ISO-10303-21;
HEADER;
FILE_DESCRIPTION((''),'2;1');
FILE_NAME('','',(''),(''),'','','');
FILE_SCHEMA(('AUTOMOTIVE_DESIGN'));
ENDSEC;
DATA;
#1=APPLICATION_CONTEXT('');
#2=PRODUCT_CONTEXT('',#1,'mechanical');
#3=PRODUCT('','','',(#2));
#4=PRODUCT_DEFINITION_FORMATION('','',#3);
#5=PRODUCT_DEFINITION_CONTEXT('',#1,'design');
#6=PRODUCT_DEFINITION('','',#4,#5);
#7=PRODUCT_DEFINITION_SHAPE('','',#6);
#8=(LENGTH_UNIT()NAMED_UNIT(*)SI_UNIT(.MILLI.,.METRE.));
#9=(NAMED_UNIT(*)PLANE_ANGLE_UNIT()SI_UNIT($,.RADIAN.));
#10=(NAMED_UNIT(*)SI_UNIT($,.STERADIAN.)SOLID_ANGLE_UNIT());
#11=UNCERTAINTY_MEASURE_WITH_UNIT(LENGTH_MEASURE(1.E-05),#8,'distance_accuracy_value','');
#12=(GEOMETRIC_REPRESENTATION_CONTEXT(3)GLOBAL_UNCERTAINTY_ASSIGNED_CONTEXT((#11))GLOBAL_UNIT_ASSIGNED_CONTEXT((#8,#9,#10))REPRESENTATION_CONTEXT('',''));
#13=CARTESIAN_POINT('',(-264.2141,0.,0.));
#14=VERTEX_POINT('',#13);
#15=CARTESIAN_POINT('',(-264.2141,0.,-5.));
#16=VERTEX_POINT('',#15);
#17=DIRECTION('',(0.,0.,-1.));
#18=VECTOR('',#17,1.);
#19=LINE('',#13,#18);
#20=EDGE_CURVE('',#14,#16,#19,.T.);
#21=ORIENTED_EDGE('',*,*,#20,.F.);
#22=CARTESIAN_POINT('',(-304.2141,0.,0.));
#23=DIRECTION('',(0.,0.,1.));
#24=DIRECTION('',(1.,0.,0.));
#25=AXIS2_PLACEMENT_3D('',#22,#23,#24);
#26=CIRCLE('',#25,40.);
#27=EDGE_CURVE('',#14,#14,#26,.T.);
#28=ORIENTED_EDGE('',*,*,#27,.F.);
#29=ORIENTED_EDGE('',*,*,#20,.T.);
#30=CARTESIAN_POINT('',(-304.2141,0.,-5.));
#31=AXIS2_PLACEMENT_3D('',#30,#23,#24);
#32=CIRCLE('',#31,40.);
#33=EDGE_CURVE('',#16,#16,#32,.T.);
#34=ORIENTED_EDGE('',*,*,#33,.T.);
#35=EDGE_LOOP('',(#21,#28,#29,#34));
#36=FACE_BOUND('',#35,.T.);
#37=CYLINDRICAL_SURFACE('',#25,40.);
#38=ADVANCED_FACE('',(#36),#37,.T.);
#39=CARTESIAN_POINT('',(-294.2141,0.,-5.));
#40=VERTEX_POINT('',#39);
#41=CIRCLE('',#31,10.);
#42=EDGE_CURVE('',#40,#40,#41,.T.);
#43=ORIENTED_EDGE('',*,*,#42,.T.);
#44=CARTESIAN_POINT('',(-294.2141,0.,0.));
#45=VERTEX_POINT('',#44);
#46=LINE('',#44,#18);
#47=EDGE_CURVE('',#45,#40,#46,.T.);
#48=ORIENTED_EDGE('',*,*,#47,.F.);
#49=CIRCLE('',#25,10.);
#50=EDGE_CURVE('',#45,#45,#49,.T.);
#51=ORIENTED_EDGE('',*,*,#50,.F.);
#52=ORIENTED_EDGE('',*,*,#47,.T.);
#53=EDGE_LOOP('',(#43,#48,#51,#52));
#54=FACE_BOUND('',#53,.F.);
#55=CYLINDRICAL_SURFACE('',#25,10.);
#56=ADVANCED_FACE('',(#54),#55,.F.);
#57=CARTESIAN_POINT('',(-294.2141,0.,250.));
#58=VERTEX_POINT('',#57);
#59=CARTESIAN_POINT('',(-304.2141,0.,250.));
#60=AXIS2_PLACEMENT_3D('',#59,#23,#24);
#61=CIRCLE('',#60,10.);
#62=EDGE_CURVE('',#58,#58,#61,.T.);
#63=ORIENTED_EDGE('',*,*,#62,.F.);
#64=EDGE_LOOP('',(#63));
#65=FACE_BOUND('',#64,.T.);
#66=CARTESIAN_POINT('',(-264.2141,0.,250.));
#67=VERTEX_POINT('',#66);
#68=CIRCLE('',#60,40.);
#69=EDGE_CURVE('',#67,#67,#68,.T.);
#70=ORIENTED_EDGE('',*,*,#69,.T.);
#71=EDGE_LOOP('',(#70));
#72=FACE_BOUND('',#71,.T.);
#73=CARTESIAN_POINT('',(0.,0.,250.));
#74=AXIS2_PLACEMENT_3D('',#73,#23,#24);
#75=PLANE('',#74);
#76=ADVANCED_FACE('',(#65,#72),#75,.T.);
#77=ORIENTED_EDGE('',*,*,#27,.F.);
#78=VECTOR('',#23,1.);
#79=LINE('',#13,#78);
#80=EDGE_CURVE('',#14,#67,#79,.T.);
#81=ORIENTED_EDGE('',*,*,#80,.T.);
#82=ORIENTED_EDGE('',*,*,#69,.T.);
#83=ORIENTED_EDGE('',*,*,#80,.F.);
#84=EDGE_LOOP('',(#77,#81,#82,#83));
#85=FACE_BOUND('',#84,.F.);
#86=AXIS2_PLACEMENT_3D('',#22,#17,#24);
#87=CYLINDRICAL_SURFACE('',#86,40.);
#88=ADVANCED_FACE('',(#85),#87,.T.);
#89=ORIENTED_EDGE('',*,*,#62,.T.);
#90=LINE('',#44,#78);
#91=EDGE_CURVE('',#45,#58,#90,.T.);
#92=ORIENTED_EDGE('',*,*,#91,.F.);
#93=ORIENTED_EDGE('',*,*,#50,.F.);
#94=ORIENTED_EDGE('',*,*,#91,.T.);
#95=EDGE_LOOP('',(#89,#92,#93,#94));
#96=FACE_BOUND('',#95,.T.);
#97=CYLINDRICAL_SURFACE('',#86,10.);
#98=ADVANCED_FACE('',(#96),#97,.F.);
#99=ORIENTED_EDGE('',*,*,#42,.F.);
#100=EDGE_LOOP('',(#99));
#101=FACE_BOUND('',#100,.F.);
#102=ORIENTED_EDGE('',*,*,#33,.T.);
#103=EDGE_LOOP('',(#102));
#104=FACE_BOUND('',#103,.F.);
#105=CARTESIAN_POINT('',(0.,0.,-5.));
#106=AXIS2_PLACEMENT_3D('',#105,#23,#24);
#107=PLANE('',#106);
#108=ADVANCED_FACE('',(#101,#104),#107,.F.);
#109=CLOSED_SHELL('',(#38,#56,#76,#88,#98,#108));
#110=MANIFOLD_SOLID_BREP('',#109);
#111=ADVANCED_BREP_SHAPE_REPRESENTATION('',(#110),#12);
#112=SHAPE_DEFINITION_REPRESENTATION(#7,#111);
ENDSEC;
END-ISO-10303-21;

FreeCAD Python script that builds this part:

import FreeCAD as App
import Part
import Sketcher

V = App.Vector

doc = App.newDocument("Part")
params = doc.addObject("Spreadsheet::Sheet", "Params")
for row, (alias, value) in enumerate([
    ("sketch1_diameter", "80 mm"),
    ("sketch1_diameter2", "20 mm"),
    ("pad1_length", "250 mm"),
    ("pad1_length2", "5 mm"),
], start=1):
    params.set(f"A{row}", alias)
    params.set(f"B{row}", "=" + value)
    params.setAlias(f"B{row}", alias)

body = doc.addObject("PartDesign::Body", "Body")

# Sketch on XY plane
sketch1 = body.newObject("Sketcher::SketchObject", "Sketch")
sketch1.AttachmentSupport = (doc.getObject("XY_Plane"), [""])
sketch1.MapMode = "FlatFace"
sketch1.addGeometry([
    Part.Circle(V(-304.2141, 0, 0), V(0, 0, 1), 40),
    Part.Circle(V(-304.2141, 0, 0), V(0, 0, 1), 10),
], False)
sketch1.addConstraint([
    Sketcher.Constraint("Coincident", 1, 3, 0, 3),
    Sketcher.Constraint("PointOnObject", 0, 3, -1),
    Sketcher.Constraint("Diameter", 0, 80.0),
    Sketcher.Constraint("Diameter", 1, 20.0),
    Sketcher.Constraint("DistanceX", 0, 3, -1, 1, 304.214),
])
sketch1.setExpression("Constraints[2]", "Params.sketch1_diameter")
sketch1.setExpression("Constraints[3]", "Params.sketch1_diameter2")
pad1 = body.newObject("PartDesign::Pad", "Pad")
pad1.Profile = sketch1
pad1.Type = "TwoLengths"
pad1.setExpression("Length", "Params.pad1_length")
pad1.setExpression("Length2", "Params.pad1_length2")

doc.recompute()
